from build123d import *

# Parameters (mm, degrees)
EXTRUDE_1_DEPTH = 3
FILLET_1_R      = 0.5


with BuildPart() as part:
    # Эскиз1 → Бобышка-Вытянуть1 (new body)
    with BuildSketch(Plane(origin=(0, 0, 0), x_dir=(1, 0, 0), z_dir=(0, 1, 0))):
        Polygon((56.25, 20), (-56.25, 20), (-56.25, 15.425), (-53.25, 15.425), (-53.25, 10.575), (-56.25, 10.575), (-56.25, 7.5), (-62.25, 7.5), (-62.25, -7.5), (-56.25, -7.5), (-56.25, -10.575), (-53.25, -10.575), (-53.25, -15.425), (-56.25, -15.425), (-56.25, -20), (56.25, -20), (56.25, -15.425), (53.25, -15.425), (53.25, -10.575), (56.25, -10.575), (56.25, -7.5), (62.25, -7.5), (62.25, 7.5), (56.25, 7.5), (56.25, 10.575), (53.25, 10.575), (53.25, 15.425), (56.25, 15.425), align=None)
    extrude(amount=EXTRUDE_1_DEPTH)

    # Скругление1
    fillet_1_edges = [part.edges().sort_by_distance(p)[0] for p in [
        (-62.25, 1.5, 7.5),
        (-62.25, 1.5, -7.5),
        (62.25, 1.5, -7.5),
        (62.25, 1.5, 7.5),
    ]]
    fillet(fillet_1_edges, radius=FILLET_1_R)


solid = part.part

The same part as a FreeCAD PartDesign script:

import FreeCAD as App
import Part
import Sketcher
from FreeCAD import Vector
Q = App.Units.Quantity


def edges_at(feature, points):
    """Names of the edges that pass closest to the given points."""
    edges = feature.Shape.Edges
    near = lambda p: min(range(len(edges)), key=lambda i: edges[i].distToShape(Part.Vertex(*p))[0])
    return sorted({f"Edge{near(p) + 1}" for p in points})

doc = App.newDocument("Part")
body = doc.addObject("PartDesign::Body", "Body")

# Sketch on XZ plane
sketch1 = body.newObject("Sketcher::SketchObject", "Sketch")
sketch1.AttachmentSupport = (doc.getObject("XZ_Plane"), [""])
sketch1.MapMode = "FlatFace"
sketch1.addGeometry([
    Part.LineSegment(Vector(56.25, -20, 0), Vector(-56.25, -20, 0)),  # 0
    Part.LineSegment(Vector(-56.25, -20, 0), Vector(-56.25, -15.425, 0)),  # 1
    Part.LineSegment(Vector(-56.25, -15.425, 0), Vector(-53.25, -15.425, 0)),  # 2
    Part.LineSegment(Vector(-53.25, -15.425, 0), Vector(-53.25, -10.575, 0)),  # 3
    Part.LineSegment(Vector(-53.25, -10.575, 0), Vector(-56.25, -10.575, 0)),  # 4
    Part.LineSegment(Vector(-56.25, -10.575, 0), Vector(-56.25, -7.5, 0)),  # 5
    Part.LineSegment(Vector(-56.25, -7.5, 0), Vector(-62.25, -7.5, 0)),  # 6
    Part.LineSegment(Vector(-62.25, -7.5, 0), Vector(-62.25, 7.5, 0)),  # 7
    Part.LineSegment(Vector(-62.25, 7.5, 0), Vector(-56.25, 7.5, 0)),  # 8
    Part.LineSegment(Vector(-56.25, 7.5, 0), Vector(-56.25, 10.575, 0)),  # 9
    Part.LineSegment(Vector(-56.25, 10.575, 0), Vector(-53.25, 10.575, 0)),  # 10
    Part.LineSegment(Vector(-53.25, 10.575, 0), Vector(-53.25, 15.425, 0)),  # 11
    Part.LineSegment(Vector(-53.25, 15.425, 0), Vector(-56.25, 15.425, 0)),  # 12
    Part.LineSegment(Vector(-56.25, 15.425, 0), Vector(-56.25, 20, 0)),  # 13
    Part.LineSegment(Vector(-56.25, 20, 0), Vector(56.25, 20, 0)),  # 14
    Part.LineSegment(Vector(56.25, 20, 0), Vector(56.25, 15.425, 0)),  # 15
    Part.LineSegment(Vector(56.25, 15.425, 0), Vector(53.25, 15.425, 0)),  # 16
    Part.LineSegment(Vector(53.25, 15.425, 0), Vector(53.25, 10.575, 0)),  # 17
    Part.LineSegment(Vector(53.25, 10.575, 0), Vector(56.25, 10.575, 0)),  # 18
    Part.LineSegment(Vector(56.25, 10.575, 0), Vector(56.25, 7.5, 0)),  # 19
    Part.LineSegment(Vector(56.25, 7.5, 0), Vector(62.25, 7.5, 0)),  # 20
    Part.LineSegment(Vector(62.25, 7.5, 0), Vector(62.25, -7.5, 0)),  # 21
    Part.LineSegment(Vector(62.25, -7.5, 0), Vector(56.25, -7.5, 0)),  # 22
    Part.LineSegment(Vector(56.25, -7.5, 0), Vector(56.25, -10.575, 0)),  # 23
    Part.LineSegment(Vector(56.25, -10.575, 0), Vector(53.25, -10.575, 0)),  # 24
    Part.LineSegment(Vector(53.25, -10.575, 0), Vector(53.25, -15.425, 0)),  # 25
    Part.LineSegment(Vector(53.25, -15.425, 0), Vector(56.25, -15.425, 0)),  # 26
    Part.LineSegment(Vector(56.25, -15.425, 0), Vector(56.25, -20, 0)),  # 27
], False)
sketch1.addConstraint([
    Sketcher.Constraint("Coincident", 0, 2, 1, 1),
    Sketcher.Constraint("Coincident", 1, 2, 2, 1),
    Sketcher.Constraint("Coincident", 2, 2, 3, 1),
    Sketcher.Constraint("Coincident", 3, 2, 4, 1),
    Sketcher.Constraint("Coincident", 4, 2, 5, 1),
    Sketcher.Constraint("Coincident", 5, 2, 6, 1),
    Sketcher.Constraint("Coincident", 6, 2, 7, 1),
    Sketcher.Constraint("Coincident", 7, 2, 8, 1),
    Sketcher.Constraint("Coincident", 8, 2, 9, 1),
    Sketcher.Constraint("Coincident", 9, 2, 10, 1),
    Sketcher.Constraint("Coincident", 10, 2, 11, 1),
    Sketcher.Constraint("Coincident", 11, 2, 12, 1),
    Sketcher.Constraint("Coincident", 12, 2, 13, 1),
    Sketcher.Constraint("Coincident", 13, 2, 14, 1),
    Sketcher.Constraint("Coincident", 14, 2, 15, 1),
    Sketcher.Constraint("Coincident", 15, 2, 16, 1),
    Sketcher.Constraint("Coincident", 16, 2, 17, 1),
    Sketcher.Constraint("Coincident", 17, 2, 18, 1),
    Sketcher.Constraint("Coincident", 18, 2, 19, 1),
    Sketcher.Constraint("Coincident", 19, 2, 20, 1),
    Sketcher.Constraint("Coincident", 20, 2, 21, 1),
    Sketcher.Constraint("Coincident", 21, 2, 22, 1),
    Sketcher.Constraint("Coincident", 22, 2, 23, 1),
    Sketcher.Constraint("Coincident", 23, 2, 24, 1),
    Sketcher.Constraint("Coincident", 24, 2, 25, 1),
    Sketcher.Constraint("Coincident", 25, 2, 26, 1),
    Sketcher.Constraint("Coincident", 26, 2, 27, 1),
    Sketcher.Constraint("Coincident", 27, 2, 0, 1),
    Sketcher.Constraint("Horizontal", 0),
    Sketcher.Constraint("Vertical", 1),
    Sketcher.Constraint("Horizontal", 2),
    Sketcher.Constraint("Vertical", 3),
    Sketcher.Constraint("Horizontal", 4),
    Sketcher.Constraint("Vertical", 5),
    Sketcher.Constraint("Horizontal", 6),
    Sketcher.Constraint("Vertical", 7),
    Sketcher.Constraint("Horizontal", 8),
    Sketcher.Constraint("Vertical", 9),
    Sketcher.Constraint("Horizontal", 10),
    Sketcher.Constraint("Vertical", 11),
    Sketcher.Constraint("Horizontal", 12),
    Sketcher.Constraint("Vertical", 13),
    Sketcher.Constraint("Horizontal", 14),
    Sketcher.Constraint("Vertical", 15),
    Sketcher.Constraint("Horizontal", 16),
    Sketcher.Constraint("Vertical", 17),
    Sketcher.Constraint("Horizontal", 18),
    Sketcher.Constraint("Vertical", 19),
    Sketcher.Constraint("Horizontal", 20),
    Sketcher.Constraint("Vertical", 21),
    Sketcher.Constraint("Horizontal", 22),
    Sketcher.Constraint("Vertical", 23),
    Sketcher.Constraint("Horizontal", 24),
    Sketcher.Constraint("Vertical", 25),
    Sketcher.Constraint("Horizontal", 26),
    Sketcher.Constraint("Vertical", 27),
    Sketcher.Constraint("Symmetric", 0, 2, 14, 2, -1, 1),
    Sketcher.Constraint("Symmetric", 2, 2, 16, 2, -1, 1),
    Sketcher.Constraint("Symmetric", 4, 2, 18, 2, -1, 1),
    Sketcher.Constraint("Symmetric", 6, 2, 20, 2, -1, 1),
    Sketcher.Constraint("Symmetric", 8, 2, 22, 2, -1, 1),
    Sketcher.Constraint("Symmetric", 10, 2, 24, 2, -1, 1),
    Sketcher.Constraint("Symmetric", 12, 2, 26, 2, -1, 1),
    Sketcher.Constraint("Symmetric", 12, 2, 15, 2, -2),
    Sketcher.Constraint("Symmetric", 10, 2, 17, 2, -2),
    Sketcher.Constraint("Symmetric", 8, 2, 19, 2, -2),
    Sketcher.Constraint("Vertical", 1, 2, 4, 2),
    Sketcher.Constraint("DistanceX", 2, 1, 2, 2, Q("3 mm")),
    Sketcher.Constraint("DistanceX", 6, 2, 6, 1, Q("6 mm")),
    Sketcher.Constraint("DistanceY", 7, 1, 7, 2, Q("15 mm")),
    Sketcher.Constraint("DistanceX", 0, 2, 0, 1, Q("112.5 mm")),
    Sketcher.Constraint("DistanceY", 0, 2, -1, 1, Q("20 mm")),
    Sketcher.Constraint("DistanceY", 3, 2, 15, 2, Q("26 mm")),
    Sketcher.Constraint("DistanceY", 3, 1, 3, 2, Q("4.85 mm")),
])
pad1 = body.newObject("PartDesign::Pad", "Pad")
pad1.Profile = sketch1
pad1.Length = 3
pad1.Reversed = True
doc.recompute()

fillet = body.newObject("PartDesign::Fillet", "Fillet")
fillet.Base = (pad1, edges_at(pad1, [
    (-62.25, 1.5, 7.5),
    (-62.25, 1.5, -7.5),
    (62.25, 1.5, -7.5),
    (62.25, 1.5, 7.5),
]))
fillet.Radius = 0.5

doc.recompute()
